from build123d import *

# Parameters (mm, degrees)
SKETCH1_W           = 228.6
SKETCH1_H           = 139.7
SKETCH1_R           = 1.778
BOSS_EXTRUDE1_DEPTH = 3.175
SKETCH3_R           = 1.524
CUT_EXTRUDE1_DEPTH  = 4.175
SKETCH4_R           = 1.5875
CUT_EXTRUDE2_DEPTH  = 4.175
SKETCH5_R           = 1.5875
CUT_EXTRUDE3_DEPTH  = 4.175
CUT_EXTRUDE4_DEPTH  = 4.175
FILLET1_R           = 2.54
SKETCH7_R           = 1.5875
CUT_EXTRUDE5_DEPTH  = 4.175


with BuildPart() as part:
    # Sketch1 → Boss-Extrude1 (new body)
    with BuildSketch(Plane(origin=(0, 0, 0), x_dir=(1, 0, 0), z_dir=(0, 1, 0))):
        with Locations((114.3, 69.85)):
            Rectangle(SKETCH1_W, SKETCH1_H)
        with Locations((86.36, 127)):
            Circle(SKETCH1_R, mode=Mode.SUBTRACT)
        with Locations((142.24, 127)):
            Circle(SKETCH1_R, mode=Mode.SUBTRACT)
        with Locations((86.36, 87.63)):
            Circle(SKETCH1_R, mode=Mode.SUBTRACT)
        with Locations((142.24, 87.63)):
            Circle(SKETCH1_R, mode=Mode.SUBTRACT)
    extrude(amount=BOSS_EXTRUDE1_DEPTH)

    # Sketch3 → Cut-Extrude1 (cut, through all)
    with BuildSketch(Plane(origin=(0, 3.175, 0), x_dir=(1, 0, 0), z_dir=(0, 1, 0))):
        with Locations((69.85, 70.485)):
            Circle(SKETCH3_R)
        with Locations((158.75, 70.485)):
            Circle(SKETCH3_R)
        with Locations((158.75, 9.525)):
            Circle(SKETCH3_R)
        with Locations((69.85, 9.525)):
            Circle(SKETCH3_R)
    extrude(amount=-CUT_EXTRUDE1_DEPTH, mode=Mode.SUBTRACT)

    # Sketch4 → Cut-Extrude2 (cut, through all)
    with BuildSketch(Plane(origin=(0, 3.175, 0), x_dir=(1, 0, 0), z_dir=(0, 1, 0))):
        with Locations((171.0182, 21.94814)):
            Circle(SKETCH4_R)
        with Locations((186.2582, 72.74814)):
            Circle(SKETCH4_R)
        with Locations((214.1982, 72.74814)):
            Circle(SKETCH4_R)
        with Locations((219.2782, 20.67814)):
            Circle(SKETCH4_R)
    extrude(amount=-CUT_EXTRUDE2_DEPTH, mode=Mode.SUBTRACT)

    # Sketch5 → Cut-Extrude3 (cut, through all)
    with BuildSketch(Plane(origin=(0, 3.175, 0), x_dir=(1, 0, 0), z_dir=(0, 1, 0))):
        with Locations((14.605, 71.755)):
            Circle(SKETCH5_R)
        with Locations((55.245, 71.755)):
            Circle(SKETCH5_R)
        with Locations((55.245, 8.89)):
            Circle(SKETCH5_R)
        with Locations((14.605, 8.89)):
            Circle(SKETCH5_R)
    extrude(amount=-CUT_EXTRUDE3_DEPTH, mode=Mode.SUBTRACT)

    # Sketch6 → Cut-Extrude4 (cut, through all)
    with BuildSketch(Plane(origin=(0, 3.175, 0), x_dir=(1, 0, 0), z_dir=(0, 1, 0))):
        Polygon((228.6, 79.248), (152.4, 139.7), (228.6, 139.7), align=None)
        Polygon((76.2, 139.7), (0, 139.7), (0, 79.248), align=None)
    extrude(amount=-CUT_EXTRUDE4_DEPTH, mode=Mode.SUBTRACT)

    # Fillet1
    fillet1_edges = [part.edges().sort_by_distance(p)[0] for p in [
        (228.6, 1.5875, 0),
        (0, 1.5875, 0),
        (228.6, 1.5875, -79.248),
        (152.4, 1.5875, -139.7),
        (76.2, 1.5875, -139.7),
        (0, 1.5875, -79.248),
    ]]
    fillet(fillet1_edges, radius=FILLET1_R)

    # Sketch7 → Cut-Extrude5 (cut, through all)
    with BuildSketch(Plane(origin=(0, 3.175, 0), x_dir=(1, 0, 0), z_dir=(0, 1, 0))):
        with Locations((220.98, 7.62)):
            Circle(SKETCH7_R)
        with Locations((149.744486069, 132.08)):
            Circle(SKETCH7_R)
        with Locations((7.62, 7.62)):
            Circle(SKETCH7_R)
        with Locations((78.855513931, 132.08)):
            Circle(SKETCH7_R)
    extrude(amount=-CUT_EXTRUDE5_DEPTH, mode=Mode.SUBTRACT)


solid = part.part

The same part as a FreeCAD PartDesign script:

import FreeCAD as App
import Part
import Sketcher
from FreeCAD import Vector
Q = App.Units.Quantity


def edges_at(feature, points):
    """Names of the edges that pass closest to the given points."""
    edges = feature.Shape.Edges
    near = lambda p: min(range(len(edges)), key=lambda i: edges[i].distToShape(Part.Vertex(*p))[0])
    return sorted({f"Edge{near(p) + 1}" for p in points})

doc = App.newDocument("Part")
body = doc.addObject("PartDesign::Body", "Body")

sketch1 = body.newObject("Sketcher::SketchObject", "Sketch")
sketch1.AttachmentSupport = (doc.getObject("XZ_Plane"), [""])
sketch1.MapMode = "FlatFace"
sketch1.addGeometry([
    Part.LineSegment(Vector(0, -139.7, 0), Vector(0, 0, 0)),
    Part.LineSegment(Vector(0, 0, 0), Vector(228.6, 0, 0)),
    Part.LineSegment(Vector(228.6, 0, 0), Vector(228.6, -139.7, 0)),
    Part.LineSegment(Vector(228.6, -139.7, 0), Vector(0, -139.7, 0)),
    Part.Circle(Vector(86.4, -87.6, 0), Vector(0, 0, 1), 1.8),
    Part.Circle(Vector(142.2, -87.6, 0), Vector(0, 0, 1), 1.8),
    Part.Circle(Vector(86.4, -127, 0), Vector(0, 0, 1), 1.8),
    Part.Circle(Vector(142.2, -127, 0), Vector(0, 0, 1), 1.8),
], False)
sketch1.addConstraint([
    Sketcher.Constraint("Coincident", 0, 2, 1, 1),
    Sketcher.Constraint("Coincident", 1, 2, 2, 1),
    Sketcher.Constraint("Coincident", 2, 2, 3, 1),
    Sketcher.Constraint("Coincident", 3, 2, 0, 1),
    Sketcher.Constraint("Vertical", 0),
    Sketcher.Constraint("Horizontal", 1),
    Sketcher.Constraint("Vertical", 2),
    Sketcher.Constraint("Horizontal", 3),
    Sketcher.Constraint("Coincident", 0, 2, -1, 1),
    Sketcher.Constraint("Equal", 4, 5),
    Sketcher.Constraint("Equal", 5, 6),
    Sketcher.Constraint("Equal", 6, 7),
    Sketcher.Constraint("Horizontal", 4, 3, 5, 3),
    Sketcher.Constraint("Horizontal", 6, 3, 7, 3),
    Sketcher.Constraint("Vertical", 4, 3, 6, 3),
    Sketcher.Constraint("Vertical", 5, 3, 7, 3),
    Sketcher.Constraint("Diameter", 4, Q("0.14 in")),
    Sketcher.Constraint("DistanceX", 1, 1, 1, 2, Q("9 in")),
    Sketcher.Constraint("DistanceY", 0, 1, 0, 2, Q("5.5 in")),
    Sketcher.Constraint("DistanceY", 6, 3, -1, 1, Q("5 in")),
    Sketcher.Constraint("DistanceX", -1, 1, 4, 3, Q("3.4 in")),
    Sketcher.Constraint("DistanceX", -1, 1, 5, 3, Q("5.6 in")),
    Sketcher.Constraint("DistanceY", 4, 3, -1, 1, Q("3.45 in")),
])
pad1 = body.newObject("PartDesign::Pad", "Pad")
pad1.Profile = sketch1
pad1.Length = Q("0.125 in")
pad1.Reversed = True

sketch2 = body.newObject("Sketcher::SketchObject", "Sketch001")
sketch2.AttachmentSupport = (doc.getObject("XZ_Plane"), [""])
sketch2.MapMode = "FlatFace"
sketch2.AttachmentOffset = App.Placement(Vector(0, 0, -0.125 * 25.4), App.Rotation())
sketch2.addGeometry([
    Part.Circle(Vector(69.8, -70.5, 0), Vector(0, 0, 1), 1.5),
    Part.Circle(Vector(158.8, -70.5, 0), Vector(0, 0, 1), 1.5),
    Part.Circle(Vector(158.8, -9.5, 0), Vector(0, 0, 1), 1.5),
    Part.Circle(Vector(69.8, -9.5, 0), Vector(0, 0, 1), 1.5),
], False)
sketch2.addConstraint([
    Sketcher.Constraint("Equal", 0, 1),
    Sketcher.Constraint("Equal", 1, 2),
    Sketcher.Constraint("Equal", 2, 3),
    Sketcher.Constraint("Horizontal", 0, 3, 1, 3),
    Sketcher.Constraint("Horizontal", 2, 3, 3, 3),
    Sketcher.Constraint("Vertical", 1, 3, 2, 3),
    Sketcher.Constraint("Vertical", 0, 3, 3, 3),
    Sketcher.Constraint("Diameter", 0, Q("0.12 in")),
    Sketcher.Constraint("DistanceX", 0, 3, 1, 3, Q("3.5 in")),
    Sketcher.Constraint("DistanceY", 1, 3, 2, 3, Q("2.4 in")),
    Sketcher.Constraint("DistanceX", -1, 1, 0, 3, Q("2.75 in")),
    Sketcher.Constraint("DistanceY", 0, 3, -1, 1, Q("2.775 in")),
])
pocket1 = body.newObject("PartDesign::Pocket", "Pocket")
pocket1.Profile = sketch2
pocket1.Type = "ThroughAll"
pocket1.Reversed = True

sketch3 = body.newObject("Sketcher::SketchObject", "Sketch002")
sketch3.AttachmentSupport = (doc.getObject("XZ_Plane"), [""])
sketch3.MapMode = "FlatFace"
sketch3.AttachmentOffset = App.Placement(Vector(0, 0, -0.125 * 25.4), App.Rotation())
sketch3.addGeometry([
    Part.Circle(Vector(171, -21.9, 0), Vector(0, 0, 1), 1.6),
    Part.Circle(Vector(186.3, -72.7, 0), Vector(0, 0, 1), 1.6),
    Part.Circle(Vector(214.2, -72.7, 0), Vector(0, 0, 1), 1.6),
    Part.Circle(Vector(219.3, -20.7, 0), Vector(0, 0, 1), 1.6),
], False)
sketch3.addConstraint([
    Sketcher.Constraint("Equal", 0, 1),
    Sketcher.Constraint("Equal", 1, 2),
    Sketcher.Constraint("Equal", 2, 3),
    Sketcher.Constraint("Horizontal", 1, 3, 2, 3),
    Sketcher.Constraint("Diameter", 0, Q("0.125 in")),
    Sketcher.Constraint("DistanceY", 1, 3, 0, 3, Q("2 in")),
    Sketcher.Constraint("DistanceX", 0, 3, 1, 3, Q("0.6 in")),
    Sketcher.Constraint("DistanceX", 1, 3, 2, 3, Q("1.1 in")),
    Sketcher.Constraint("DistanceX", 0, 3, 3, 3, Q("1.9 in")),
    Sketcher.Constraint("DistanceY", 0, 3, 3, 3, Q("0.05 in")),
    Sketcher.Constraint("DistanceX", -1, 1, 0, 3, Q("6.733 in")),
    Sketcher.Constraint("DistanceY", 0, 3, -1, 1, Q("0.8641 in")),
])
pocket2 = body.newObject("PartDesign::Pocket", "Pocket001")
pocket2.Profile = sketch3
pocket2.Type = "ThroughAll"
pocket2.Reversed = True

sketch4 = body.newObject("Sketcher::SketchObject", "Sketch003")
sketch4.AttachmentSupport = (doc.getObject("XZ_Plane"), [""])
sketch4.MapMode = "FlatFace"
sketch4.AttachmentOffset = App.Placement(Vector(0, 0, -0.125 * 25.4), App.Rotation())
sketch4.addGeometry([
    Part.Circle(Vector(14.6, -71.8, 0), Vector(0, 0, 1), 1.6),
    Part.Circle(Vector(55.2, -71.8, 0), Vector(0, 0, 1), 1.6),
    Part.Circle(Vector(55.2, -8.9, 0), Vector(0, 0, 1), 1.6),
    Part.Circle(Vector(14.6, -8.9, 0), Vector(0, 0, 1), 1.6),
], False)
sketch4.addConstraint([
    Sketcher.Constraint("Equal", 0, 1),
    Sketcher.Constraint("Equal", 1, 2),
    Sketcher.Constraint("Equal", 2, 3),
    Sketcher.Constraint("Horizontal", 0, 3, 1, 3),
    Sketcher.Constraint("Horizontal", 2, 3, 3, 3),
    Sketcher.Constraint("Vertical", 1, 3, 2, 3),
    Sketcher.Constraint("Vertical", 0, 3, 3, 3),
    Sketcher.Constraint("Diameter", 0, Q("0.125 in")),
    Sketcher.Constraint("DistanceX", 0, 3, 1, 3, Q("1.6 in")),
    Sketcher.Constraint("DistanceY", 2, 3, -1, 1, Q("0.35 in")),
    Sketcher.Constraint("DistanceX", -1, 1, 0, 3, Q("0.575 in")),
    Sketcher.Constraint("DistanceY", 0, 3, -1, 1, Q("2.825 in")),
])
pocket3 = body.newObject("PartDesign::Pocket", "Pocket002")
pocket3.Profile = sketch4
pocket3.Type = "ThroughAll"
pocket3.Reversed = True

sketch5 = body.newObject("Sketcher::SketchObject", "Sketch004")
sketch5.AttachmentSupport = (doc.getObject("XZ_Plane"), [""])
sketch5.MapMode = "FlatFace"
sketch5.AttachmentOffset = App.Placement(Vector(0, 0, -0.125 * 25.4), App.Rotation())
sketch5.addGeometry([
    Part.LineSegment(Vector(152, -140, 0), Vector(229, -79, 0)),
    Part.LineSegment(Vector(229, -79, 0), Vector(229, -140, 0)),
    Part.LineSegment(Vector(229, -140, 0), Vector(152, -140, 0)),
    Part.LineSegment(Vector(76, -140, 0), Vector(0, -140, 0)),
    Part.LineSegment(Vector(0, -140, 0), Vector(0, -79, 0)),
    Part.LineSegment(Vector(0, -79, 0), Vector(76, -140, 0)),
], False)
sketch5.addConstraint([
    Sketcher.Constraint("Coincident", 0, 2, 1, 1),
    Sketcher.Constraint("Coincident", 1, 2, 2, 1),
    Sketcher.Constraint("Coincident", 2, 2, 0, 1),
    Sketcher.Constraint("Coincident", 3, 2, 4, 1),
    Sketcher.Constraint("Coincident", 4, 2, 5, 1),
    Sketcher.Constraint("Coincident", 5, 2, 3, 1),
    Sketcher.Constraint("Vertical", 1),
    Sketcher.Constraint("Horizontal", 2),
    Sketcher.Constraint("Horizontal", 3),
    Sketcher.Constraint("Vertical", 4),
    Sketcher.Constraint("PointOnObject", 3, 2, -2),
    Sketcher.Constraint("Horizontal", 2, 2, 3, 2),
    Sketcher.Constraint("Horizontal", 0, 2, 4, 2),
    Sketcher.Constraint("Equal", 2, 3),
    Sketcher.Constraint("DistanceX", 2, 2, 2, 1, Q("3 in")),
    Sketcher.Constraint("DistanceX", -1, 1, 0, 2, Q("9 in")),
    Sketcher.Constraint("DistanceY", 1, 2, 1, 1, Q("2.38 in")),
    Sketcher.Constraint("DistanceY", 1, 2, -1, 1, Q("5.5 in")),
])
pocket4 = body.newObject("PartDesign::Pocket", "Pocket003")
pocket4.Profile = sketch5
pocket4.Type = "ThroughAll"
pocket4.Reversed = True
doc.recompute()

fillet = body.newObject("PartDesign::Fillet", "Fillet")
fillet.Base = (pocket4, edges_at(pocket4, [
    (228.6, 1.587, 0),
    (0, 1.587, 0),
    (228.6, 1.587, -79.248),
    (152.4, 1.587, -139.7),
    (76.2, 1.587, -139.7),
    (0, 1.587, -79.248),
]))
fillet.Radius = Q("0.1 in")

sketch6 = body.newObject("Sketcher::SketchObject", "Sketch005")
sketch6.AttachmentSupport = (doc.getObject("XZ_Plane"), [""])
sketch6.MapMode = "FlatFace"
sketch6.AttachmentOffset = App.Placement(Vector(0, 0, -0.125 * 25.4), App.Rotation())
sketch6.addGeometry([
    Part.Circle(Vector(221, -7.6, 0), Vector(0, 0, 1), 1.6),
    Part.Circle(Vector(149.7, -132.1, 0), Vector(0, 0, 1), 1.6),
    Part.Circle(Vector(7.6, -7.6, 0), Vector(0, 0, 1), 1.6),
    Part.Circle(Vector(78.9, -132.1, 0), Vector(0, 0, 1), 1.6),
], False)
sketch6.addConstraint([
    Sketcher.Constraint("Equal", 0, 1),
    Sketcher.Constraint("Equal", 1, 2),
    Sketcher.Constraint("Equal", 2, 3),
    Sketcher.Constraint("Horizontal", 0, 3, 2, 3),
    Sketcher.Constraint("Horizontal", 1, 3, 3, 3),
    Sketcher.Constraint("Diameter", 0, Q("0.125 in")),
    Sketcher.Constraint("DistanceX", -1, 1, 0, 3, Q("8.7 in")),
    Sketcher.Constraint("DistanceY", 0, 3, -1, 1, Q("0.3 in")),
    Sketcher.Constraint("DistanceY", 1, 3, -1, 1, Q("5.2 in")),
    Sketcher.Constraint("DistanceX", -1, 1, 2, 3, Q("0.3 in")),
    Sketcher.Constraint("DistanceX", -1, 1, 1, 3, 149.744486),
    Sketcher.Constraint("DistanceX", -1, 1, 3, 3, 78.855514),
])
pocket5 = body.newObject("PartDesign::Pocket", "Pocket004")
pocket5.Profile = sketch6
pocket5.Type = "ThroughAll"
pocket5.Reversed = True

doc.recompute()
